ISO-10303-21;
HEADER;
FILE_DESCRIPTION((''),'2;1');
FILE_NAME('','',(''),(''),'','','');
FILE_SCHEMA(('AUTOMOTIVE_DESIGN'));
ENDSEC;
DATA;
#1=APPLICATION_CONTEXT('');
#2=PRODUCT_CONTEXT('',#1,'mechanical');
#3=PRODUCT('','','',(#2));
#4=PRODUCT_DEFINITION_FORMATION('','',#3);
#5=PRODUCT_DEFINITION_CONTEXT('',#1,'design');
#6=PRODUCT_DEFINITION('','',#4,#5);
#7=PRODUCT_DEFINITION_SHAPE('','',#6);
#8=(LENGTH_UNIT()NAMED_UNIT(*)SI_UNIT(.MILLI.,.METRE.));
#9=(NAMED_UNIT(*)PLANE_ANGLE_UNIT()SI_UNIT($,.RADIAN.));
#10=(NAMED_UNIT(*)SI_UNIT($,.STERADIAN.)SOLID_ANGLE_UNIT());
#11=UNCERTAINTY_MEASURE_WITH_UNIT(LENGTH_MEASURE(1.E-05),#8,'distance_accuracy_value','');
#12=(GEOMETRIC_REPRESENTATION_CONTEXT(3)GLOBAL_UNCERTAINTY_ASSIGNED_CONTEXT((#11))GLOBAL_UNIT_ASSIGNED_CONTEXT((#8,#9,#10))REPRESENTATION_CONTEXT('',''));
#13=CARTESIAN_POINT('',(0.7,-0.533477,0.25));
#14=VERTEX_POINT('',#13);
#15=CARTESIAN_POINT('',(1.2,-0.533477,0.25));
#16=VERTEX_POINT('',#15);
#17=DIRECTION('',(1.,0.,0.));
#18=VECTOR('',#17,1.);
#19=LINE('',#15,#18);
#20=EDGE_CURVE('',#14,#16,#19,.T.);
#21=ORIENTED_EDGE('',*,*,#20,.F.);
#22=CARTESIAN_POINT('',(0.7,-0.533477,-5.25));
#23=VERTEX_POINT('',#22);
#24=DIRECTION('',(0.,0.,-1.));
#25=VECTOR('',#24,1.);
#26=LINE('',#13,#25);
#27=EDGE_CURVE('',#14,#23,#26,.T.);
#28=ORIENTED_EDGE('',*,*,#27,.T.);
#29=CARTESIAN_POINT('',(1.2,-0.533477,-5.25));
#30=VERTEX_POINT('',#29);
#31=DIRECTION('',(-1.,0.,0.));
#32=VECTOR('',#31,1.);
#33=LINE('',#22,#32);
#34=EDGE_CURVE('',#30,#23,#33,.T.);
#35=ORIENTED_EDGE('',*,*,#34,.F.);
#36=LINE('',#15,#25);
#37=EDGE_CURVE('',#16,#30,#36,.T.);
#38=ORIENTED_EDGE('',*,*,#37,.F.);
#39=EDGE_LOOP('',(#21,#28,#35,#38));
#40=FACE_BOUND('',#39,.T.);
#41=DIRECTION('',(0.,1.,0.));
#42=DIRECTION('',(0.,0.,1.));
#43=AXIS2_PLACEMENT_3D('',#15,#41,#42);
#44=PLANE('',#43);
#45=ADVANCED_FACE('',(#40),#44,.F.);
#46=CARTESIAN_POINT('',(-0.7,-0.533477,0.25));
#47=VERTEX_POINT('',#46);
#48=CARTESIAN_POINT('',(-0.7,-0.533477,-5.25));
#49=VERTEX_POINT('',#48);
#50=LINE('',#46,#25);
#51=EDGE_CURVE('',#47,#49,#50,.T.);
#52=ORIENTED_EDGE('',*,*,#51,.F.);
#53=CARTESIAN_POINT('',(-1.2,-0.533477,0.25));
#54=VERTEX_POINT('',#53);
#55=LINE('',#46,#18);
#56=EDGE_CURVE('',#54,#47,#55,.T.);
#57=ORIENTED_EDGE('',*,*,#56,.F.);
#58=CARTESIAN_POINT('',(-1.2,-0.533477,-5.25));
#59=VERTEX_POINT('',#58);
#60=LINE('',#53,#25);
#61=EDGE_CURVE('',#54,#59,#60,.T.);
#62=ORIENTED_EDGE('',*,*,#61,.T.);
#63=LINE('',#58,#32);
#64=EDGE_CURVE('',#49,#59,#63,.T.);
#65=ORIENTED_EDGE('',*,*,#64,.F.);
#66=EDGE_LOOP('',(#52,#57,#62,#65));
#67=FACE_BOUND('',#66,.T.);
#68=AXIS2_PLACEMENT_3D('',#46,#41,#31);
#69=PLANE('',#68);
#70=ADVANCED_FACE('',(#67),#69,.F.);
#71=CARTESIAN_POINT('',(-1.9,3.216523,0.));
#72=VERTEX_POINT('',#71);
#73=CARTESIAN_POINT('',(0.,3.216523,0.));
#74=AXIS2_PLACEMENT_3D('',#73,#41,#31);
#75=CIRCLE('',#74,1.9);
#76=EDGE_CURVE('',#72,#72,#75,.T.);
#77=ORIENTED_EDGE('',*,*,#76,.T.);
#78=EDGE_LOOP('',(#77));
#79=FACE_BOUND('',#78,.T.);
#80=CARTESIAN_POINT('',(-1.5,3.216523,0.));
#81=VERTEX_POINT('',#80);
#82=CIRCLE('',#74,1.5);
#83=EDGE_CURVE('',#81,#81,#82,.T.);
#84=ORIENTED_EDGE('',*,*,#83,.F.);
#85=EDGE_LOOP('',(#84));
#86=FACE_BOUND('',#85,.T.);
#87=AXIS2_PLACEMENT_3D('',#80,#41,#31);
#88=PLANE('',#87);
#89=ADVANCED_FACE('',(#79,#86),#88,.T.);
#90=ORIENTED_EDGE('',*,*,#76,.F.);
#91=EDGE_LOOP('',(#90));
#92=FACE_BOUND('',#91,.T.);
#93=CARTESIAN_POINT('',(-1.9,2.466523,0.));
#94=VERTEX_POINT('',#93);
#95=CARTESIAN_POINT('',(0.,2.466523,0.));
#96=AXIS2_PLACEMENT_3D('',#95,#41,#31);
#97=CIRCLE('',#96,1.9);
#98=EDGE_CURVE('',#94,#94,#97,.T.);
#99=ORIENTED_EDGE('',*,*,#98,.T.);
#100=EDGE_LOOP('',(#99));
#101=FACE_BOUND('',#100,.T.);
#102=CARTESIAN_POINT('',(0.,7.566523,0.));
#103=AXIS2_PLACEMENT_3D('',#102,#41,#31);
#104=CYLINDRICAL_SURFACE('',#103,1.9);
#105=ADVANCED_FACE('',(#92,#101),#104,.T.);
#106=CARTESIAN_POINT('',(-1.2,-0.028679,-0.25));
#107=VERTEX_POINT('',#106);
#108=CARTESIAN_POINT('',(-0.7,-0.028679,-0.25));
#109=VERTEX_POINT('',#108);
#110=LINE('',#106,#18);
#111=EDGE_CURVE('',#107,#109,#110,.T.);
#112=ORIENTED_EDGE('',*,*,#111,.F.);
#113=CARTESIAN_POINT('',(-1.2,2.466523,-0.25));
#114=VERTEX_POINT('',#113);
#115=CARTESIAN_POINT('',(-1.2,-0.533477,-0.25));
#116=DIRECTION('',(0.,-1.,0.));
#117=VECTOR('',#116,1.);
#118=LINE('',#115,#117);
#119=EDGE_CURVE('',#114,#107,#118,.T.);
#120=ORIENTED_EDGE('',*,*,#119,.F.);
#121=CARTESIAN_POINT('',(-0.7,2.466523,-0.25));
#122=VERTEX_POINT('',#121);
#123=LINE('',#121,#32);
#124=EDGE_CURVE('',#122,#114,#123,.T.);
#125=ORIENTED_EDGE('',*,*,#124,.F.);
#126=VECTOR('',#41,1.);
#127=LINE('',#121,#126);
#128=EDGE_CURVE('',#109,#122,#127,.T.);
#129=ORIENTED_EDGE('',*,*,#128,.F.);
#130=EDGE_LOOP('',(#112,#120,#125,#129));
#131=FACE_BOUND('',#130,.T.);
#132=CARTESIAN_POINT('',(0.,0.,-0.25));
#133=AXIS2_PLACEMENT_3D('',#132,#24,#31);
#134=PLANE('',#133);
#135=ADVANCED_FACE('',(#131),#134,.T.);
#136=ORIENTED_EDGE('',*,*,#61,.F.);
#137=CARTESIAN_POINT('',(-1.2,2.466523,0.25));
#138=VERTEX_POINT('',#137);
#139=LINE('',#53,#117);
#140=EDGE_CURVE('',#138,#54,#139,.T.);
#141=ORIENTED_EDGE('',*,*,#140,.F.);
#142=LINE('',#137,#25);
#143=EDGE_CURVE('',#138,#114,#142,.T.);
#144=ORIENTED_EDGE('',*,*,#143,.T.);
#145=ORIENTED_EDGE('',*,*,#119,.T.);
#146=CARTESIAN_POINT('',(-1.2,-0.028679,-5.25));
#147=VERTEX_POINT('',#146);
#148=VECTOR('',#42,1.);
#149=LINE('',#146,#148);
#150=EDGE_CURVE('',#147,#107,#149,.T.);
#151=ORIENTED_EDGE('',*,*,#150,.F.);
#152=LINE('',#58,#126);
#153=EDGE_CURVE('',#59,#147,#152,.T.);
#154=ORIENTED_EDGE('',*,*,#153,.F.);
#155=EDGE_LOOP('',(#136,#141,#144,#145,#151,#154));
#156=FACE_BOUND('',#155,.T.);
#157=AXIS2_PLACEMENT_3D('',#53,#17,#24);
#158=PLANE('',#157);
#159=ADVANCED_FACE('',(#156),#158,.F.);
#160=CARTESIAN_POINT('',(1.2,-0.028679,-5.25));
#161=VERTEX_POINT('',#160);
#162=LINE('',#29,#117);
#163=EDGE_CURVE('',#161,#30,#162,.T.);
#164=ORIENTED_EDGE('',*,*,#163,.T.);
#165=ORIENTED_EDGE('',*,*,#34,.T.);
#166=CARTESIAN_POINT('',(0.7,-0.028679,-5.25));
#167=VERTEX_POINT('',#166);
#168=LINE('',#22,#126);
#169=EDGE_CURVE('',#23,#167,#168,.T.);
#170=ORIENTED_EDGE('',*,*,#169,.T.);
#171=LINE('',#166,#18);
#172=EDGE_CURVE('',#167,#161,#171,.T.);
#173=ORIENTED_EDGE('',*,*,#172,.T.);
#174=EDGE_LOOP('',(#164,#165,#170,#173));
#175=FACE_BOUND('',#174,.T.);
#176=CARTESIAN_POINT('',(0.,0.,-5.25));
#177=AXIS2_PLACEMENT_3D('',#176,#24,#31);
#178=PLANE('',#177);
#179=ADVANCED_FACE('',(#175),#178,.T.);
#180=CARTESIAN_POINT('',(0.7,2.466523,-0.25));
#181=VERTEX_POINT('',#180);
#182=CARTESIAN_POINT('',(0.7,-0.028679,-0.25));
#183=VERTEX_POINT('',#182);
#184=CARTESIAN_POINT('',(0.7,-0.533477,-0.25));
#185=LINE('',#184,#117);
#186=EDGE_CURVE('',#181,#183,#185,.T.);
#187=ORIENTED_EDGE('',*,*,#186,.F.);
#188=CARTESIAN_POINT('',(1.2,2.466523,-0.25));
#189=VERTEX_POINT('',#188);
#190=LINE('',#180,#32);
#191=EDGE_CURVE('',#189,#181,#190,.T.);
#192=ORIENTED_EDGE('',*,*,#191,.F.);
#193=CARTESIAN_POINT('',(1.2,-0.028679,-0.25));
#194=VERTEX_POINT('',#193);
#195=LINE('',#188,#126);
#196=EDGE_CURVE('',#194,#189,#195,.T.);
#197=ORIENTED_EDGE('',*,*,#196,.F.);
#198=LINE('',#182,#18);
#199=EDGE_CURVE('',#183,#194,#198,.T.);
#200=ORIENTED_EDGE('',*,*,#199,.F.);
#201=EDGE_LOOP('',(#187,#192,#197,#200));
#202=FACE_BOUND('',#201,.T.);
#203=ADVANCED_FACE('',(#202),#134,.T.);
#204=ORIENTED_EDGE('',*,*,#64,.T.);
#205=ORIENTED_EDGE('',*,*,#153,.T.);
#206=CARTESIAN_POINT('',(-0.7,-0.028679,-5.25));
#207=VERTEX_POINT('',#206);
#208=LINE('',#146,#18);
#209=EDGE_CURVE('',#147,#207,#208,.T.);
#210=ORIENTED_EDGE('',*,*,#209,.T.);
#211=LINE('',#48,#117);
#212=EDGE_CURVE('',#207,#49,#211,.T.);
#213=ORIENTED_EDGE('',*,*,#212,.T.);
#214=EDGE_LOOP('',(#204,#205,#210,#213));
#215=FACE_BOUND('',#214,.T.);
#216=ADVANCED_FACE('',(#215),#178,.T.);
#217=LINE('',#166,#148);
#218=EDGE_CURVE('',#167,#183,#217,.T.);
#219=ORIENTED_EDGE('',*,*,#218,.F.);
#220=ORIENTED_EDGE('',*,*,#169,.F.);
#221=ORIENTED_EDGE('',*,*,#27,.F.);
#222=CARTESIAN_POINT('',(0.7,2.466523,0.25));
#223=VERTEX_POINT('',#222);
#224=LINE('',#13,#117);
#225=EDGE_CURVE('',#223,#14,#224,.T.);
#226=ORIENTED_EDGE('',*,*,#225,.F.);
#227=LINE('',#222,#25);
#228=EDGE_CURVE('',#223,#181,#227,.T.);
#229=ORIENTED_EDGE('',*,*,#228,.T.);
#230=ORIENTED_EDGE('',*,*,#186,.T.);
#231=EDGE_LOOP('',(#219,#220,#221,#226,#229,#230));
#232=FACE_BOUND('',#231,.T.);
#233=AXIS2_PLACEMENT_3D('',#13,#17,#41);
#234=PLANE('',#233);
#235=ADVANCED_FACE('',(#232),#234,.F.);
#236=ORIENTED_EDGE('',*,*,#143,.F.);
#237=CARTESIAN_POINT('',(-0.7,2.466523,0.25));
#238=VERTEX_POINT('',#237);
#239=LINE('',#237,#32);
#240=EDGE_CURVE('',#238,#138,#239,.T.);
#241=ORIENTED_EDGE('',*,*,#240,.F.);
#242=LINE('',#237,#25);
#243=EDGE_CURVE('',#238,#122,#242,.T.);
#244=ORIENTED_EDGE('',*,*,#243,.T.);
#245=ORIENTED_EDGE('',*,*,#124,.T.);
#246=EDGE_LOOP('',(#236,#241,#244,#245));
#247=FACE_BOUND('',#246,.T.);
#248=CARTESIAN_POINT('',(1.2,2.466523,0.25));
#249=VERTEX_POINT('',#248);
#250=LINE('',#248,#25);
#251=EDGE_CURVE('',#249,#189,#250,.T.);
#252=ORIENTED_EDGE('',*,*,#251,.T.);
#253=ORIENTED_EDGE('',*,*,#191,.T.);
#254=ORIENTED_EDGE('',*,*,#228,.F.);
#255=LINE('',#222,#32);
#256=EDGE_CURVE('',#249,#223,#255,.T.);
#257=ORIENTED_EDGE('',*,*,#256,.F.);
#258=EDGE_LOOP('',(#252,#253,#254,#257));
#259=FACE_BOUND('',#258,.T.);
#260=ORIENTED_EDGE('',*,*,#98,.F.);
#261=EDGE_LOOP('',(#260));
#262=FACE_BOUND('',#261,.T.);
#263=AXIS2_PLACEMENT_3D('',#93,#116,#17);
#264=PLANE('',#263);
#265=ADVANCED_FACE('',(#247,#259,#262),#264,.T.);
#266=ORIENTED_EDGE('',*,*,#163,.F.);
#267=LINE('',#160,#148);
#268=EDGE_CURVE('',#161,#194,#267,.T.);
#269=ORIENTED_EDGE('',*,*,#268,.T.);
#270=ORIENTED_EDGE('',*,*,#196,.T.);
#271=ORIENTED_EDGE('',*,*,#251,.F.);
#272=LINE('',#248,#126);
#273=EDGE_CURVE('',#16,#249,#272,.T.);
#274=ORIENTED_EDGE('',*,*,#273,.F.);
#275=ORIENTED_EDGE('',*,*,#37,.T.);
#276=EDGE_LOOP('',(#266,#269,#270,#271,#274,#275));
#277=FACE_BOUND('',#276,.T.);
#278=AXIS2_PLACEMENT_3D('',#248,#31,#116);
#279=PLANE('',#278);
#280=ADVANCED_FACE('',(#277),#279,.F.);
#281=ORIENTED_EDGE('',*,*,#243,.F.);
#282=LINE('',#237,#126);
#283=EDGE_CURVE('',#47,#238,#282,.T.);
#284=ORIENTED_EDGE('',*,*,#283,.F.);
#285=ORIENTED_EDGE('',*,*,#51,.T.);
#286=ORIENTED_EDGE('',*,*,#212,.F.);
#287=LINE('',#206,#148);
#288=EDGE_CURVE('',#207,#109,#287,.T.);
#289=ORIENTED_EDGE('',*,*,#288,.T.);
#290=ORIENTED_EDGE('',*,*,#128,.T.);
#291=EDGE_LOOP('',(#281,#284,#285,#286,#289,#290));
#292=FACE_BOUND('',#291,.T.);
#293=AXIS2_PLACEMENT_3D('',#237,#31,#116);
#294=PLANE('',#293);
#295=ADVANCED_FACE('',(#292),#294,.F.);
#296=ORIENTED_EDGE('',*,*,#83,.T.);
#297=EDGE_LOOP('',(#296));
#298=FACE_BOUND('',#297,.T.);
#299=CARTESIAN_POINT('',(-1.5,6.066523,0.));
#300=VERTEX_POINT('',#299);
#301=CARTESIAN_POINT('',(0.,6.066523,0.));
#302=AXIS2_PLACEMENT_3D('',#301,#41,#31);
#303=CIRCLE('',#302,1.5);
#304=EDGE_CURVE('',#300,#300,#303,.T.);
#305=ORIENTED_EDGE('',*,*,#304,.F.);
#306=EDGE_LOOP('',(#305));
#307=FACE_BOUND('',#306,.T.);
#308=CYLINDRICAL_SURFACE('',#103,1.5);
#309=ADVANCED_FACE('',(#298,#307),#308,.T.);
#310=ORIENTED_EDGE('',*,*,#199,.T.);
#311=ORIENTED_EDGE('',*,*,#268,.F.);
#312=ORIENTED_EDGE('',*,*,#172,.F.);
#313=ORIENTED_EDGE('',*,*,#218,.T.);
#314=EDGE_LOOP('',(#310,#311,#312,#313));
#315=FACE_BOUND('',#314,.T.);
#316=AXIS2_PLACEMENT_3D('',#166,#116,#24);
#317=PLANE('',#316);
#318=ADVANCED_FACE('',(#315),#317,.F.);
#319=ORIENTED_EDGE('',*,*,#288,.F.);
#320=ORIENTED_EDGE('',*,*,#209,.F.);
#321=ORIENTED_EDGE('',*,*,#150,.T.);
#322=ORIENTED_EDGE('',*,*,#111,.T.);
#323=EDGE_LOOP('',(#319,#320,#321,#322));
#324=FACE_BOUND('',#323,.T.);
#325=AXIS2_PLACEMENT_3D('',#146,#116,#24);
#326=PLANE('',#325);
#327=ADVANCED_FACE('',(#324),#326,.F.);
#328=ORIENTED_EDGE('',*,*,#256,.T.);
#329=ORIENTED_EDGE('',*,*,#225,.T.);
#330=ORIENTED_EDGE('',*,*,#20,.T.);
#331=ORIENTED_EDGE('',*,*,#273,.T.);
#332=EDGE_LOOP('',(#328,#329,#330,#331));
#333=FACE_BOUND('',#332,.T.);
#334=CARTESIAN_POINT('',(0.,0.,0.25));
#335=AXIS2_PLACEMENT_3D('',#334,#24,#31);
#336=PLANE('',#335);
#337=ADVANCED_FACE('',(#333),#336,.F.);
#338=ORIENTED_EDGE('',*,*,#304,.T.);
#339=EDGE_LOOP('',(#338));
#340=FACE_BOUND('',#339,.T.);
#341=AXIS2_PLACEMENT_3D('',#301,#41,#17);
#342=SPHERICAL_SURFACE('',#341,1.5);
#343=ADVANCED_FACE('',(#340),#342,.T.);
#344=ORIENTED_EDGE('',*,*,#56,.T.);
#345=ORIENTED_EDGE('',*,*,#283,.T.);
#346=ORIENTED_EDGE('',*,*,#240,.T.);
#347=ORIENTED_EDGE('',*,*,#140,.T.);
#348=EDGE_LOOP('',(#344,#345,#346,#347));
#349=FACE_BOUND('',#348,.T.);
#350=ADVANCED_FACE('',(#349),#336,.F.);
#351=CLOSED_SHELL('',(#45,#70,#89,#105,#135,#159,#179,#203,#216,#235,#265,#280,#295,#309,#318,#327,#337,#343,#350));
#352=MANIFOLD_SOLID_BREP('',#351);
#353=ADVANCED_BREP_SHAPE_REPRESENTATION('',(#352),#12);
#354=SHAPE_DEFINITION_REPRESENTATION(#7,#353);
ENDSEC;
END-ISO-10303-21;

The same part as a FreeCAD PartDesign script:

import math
import FreeCAD as App
import Part
import Sketcher
from FreeCAD import Vector

doc = App.newDocument("Part")
body = doc.addObject("PartDesign::Body", "Body")

# Sketch on XY plane
sketch1 = body.newObject("Sketcher::SketchObject", "Sketch")
sketch1.AttachmentSupport = (doc.getObject("XY_Plane"), [""])
sketch1.MapMode = "FlatFace"
sketch1.addGeometry([
    Part.LineSegment(Vector(-1.5, 6.07, 0), Vector(-1.5, 3.22, 0)),  # 0
    Part.LineSegment(Vector(-1.5, 3.22, 0), Vector(-1.9, 3.22, 0)),  # 1
    Part.LineSegment(Vector(-1.9, 3.22, 0), Vector(-1.9, 2.47, 0)),  # 2
    Part.LineSegment(Vector(-1.9, 2.47, 0), Vector(0, 2.47, 0)),  # 3
    Part.LineSegment(Vector(0, 2.47, 0), Vector(0, 7.57, 0)),  # 4
    Part.ArcOfCircle(Part.Circle(Vector(0, 6.07, 0), Vector(0, 0, 1), 1.5), math.radians(90), math.radians(180)),  # 5
], False)
sketch1.addConstraint([
    Sketcher.Constraint("Coincident", 0, 2, 1, 1),
    Sketcher.Constraint("Coincident", 1, 2, 2, 1),
    Sketcher.Constraint("Coincident", 2, 2, 3, 1),
    Sketcher.Constraint("Coincident", 3, 2, 4, 1),
    Sketcher.Constraint("Coincident", 4, 2, 5, 1),
    Sketcher.Constraint("Tangent", 5, 2, 0, 1),
    Sketcher.Constraint("Vertical", 0),
    Sketcher.Constraint("Horizontal", 1),
    Sketcher.Constraint("Vertical", 2),
    Sketcher.Constraint("Horizontal", 3),
    Sketcher.Constraint("Vertical", 4),
    Sketcher.Constraint("PointOnObject", 5, 3, -2),
    Sketcher.Constraint("PointOnObject", 3, 2, -2),
    Sketcher.Constraint("Radius", 5, 1.5),
    Sketcher.Constraint("DistanceX", 1, 2, 1, 1, 0.4),
    Sketcher.Constraint("DistanceY", 4, 1, 4, 2, 5.1),
    Sketcher.Constraint("DistanceY", 0, 2, 0, 1, 2.85),
    Sketcher.Constraint("DistanceY", -1, 1, 5, 3, 6.066523),
])
revolution = body.newObject("PartDesign::Revolution", "Revolution")
revolution.Profile = sketch1
revolution.ReferenceAxis = (sketch1, ["V_Axis"])
revolution.Angle = 360

# Sketch on XY plane
sketch2 = body.newObject("Sketcher::SketchObject", "Sketch001")
sketch2.AttachmentSupport = (doc.getObject("XY_Plane"), [""])
sketch2.MapMode = "FlatFace"
sketch2.addGeometry([
    Part.LineSegment(Vector(0.7, 2.5, 0), Vector(0.7, -0.5, 0)),  # 0
    Part.LineSegment(Vector(0.7, -0.5, 0), Vector(1.2, -0.5, 0)),  # 1
    Part.LineSegment(Vector(1.2, -0.5, 0), Vector(1.2, 2.5, 0)),  # 2
    Part.LineSegment(Vector(1.2, 2.5, 0), Vector(0.7, 2.5, 0)),  # 3
    Part.LineSegment(Vector(-1.2, 2.5, 0), Vector(-1.2, -0.5, 0)),  # 4
    Part.LineSegment(Vector(-1.2, -0.5, 0), Vector(-0.7, -0.5, 0)),  # 5
    Part.LineSegment(Vector(-0.7, -0.5, 0), Vector(-0.7, 2.5, 0)),  # 6
    Part.LineSegment(Vector(-0.7, 2.5, 0), Vector(-1.2, 2.5, 0)),  # 7
], False)
sketch2.addConstraint([
    Sketcher.Constraint("Coincident", 0, 2, 1, 1),
    Sketcher.Constraint("Coincident", 1, 2, 2, 1),
    Sketcher.Constraint("Coincident", 2, 2, 3, 1),
    Sketcher.Constraint("Coincident", 3, 2, 0, 1),
    Sketcher.Constraint("Coincident", 4, 2, 5, 1),
    Sketcher.Constraint("Coincident", 5, 2, 6, 1),
    Sketcher.Constraint("Coincident", 6, 2, 7, 1),
    Sketcher.Constraint("Coincident", 7, 2, 4, 1),
    Sketcher.Constraint("Vertical", 0),
    Sketcher.Constraint("Horizontal", 1),
    Sketcher.Constraint("Vertical", 2),
    Sketcher.Constraint("Horizontal", 3),
    Sketcher.Constraint("Vertical", 4),
    Sketcher.Constraint("Horizontal", 5),
    Sketcher.Constraint("Vertical", 6),
    Sketcher.Constraint("Horizontal", 7),
    Sketcher.Constraint("Symmetric", 1, 2, 4, 2, -2),
    Sketcher.Constraint("Symmetric", 3, 2, 6, 2, -2),
    Sketcher.Constraint("DistanceY", 0, 2, 0, 1, 3.0),
    Sketcher.Constraint("DistanceX", 1, 1, 1, 2, 0.5),
    Sketcher.Constraint("DistanceX", -1, 1, 0, 2, 0.7),
    Sketcher.Constraint("DistanceY", 0, 2, -1, 1, 0.533477),
])
pad1 = body.newObject("PartDesign::Pad", "Pad")
pad1.Profile = sketch2
pad1.Length = 0.5
pad1.Midplane = True

# Sketch on XY plane
sketch3 = body.newObject("Sketcher::SketchObject", "Sketch002")
sketch3.AttachmentSupport = (doc.getObject("XY_Plane"), [""])
sketch3.MapMode = "FlatFace"
sketch3.AttachmentOffset = App.Placement(Vector(0, 0, -0.25), App.Rotation())
sketch3.addGeometry([
    Part.LineSegment(Vector(-0.7, 0, 0), Vector(-0.7, -0.5, 0)),  # 0
    Part.LineSegment(Vector(-0.7, -0.5, 0), Vector(-1.2, -0.5, 0)),  # 1
    Part.LineSegment(Vector(-1.2, -0.5, 0), Vector(-1.2, 0, 0)),  # 2
    Part.LineSegment(Vector(-1.2, 0, 0), Vector(-0.7, 0, 0)),  # 3
    Part.LineSegment(Vector(1.2, 0, 0), Vector(1.2, -0.5, 0)),  # 4
    Part.LineSegment(Vector(1.2, -0.5, 0), Vector(0.7, -0.5, 0)),  # 5
    Part.LineSegment(Vector(0.7, -0.5, 0), Vector(0.7, 0, 0)),  # 6
    Part.LineSegment(Vector(0.7, 0, 0), Vector(1.2, 0, 0)),  # 7
], False)
sketch3.addConstraint([
    Sketcher.Constraint("Coincident", 0, 2, 1, 1),
    Sketcher.Constraint("Coincident", 1, 2, 2, 1),
    Sketcher.Constraint("Coincident", 2, 2, 3, 1),
    Sketcher.Constraint("Coincident", 3, 2, 0, 1),
    Sketcher.Constraint("Coincident", 4, 2, 5, 1),
    Sketcher.Constraint("Coincident", 5, 2, 6, 1),
    Sketcher.Constraint("Coincident", 6, 2, 7, 1),
    Sketcher.Constraint("Coincident", 7, 2, 4, 1),
    Sketcher.Constraint("Vertical", 0),
    Sketcher.Constraint("Horizontal", 1),
    Sketcher.Constraint("Vertical", 2),
    Sketcher.Constraint("Horizontal", 3),
    Sketcher.Constraint("Vertical", 4),
    Sketcher.Constraint("Horizontal", 5),
    Sketcher.Constraint("Vertical", 6),
    Sketcher.Constraint("Horizontal", 7),
    Sketcher.Constraint("Symmetric", 1, 2, 4, 2, -2),
    Sketcher.Constraint("Symmetric", 3, 2, 6, 2, -2),
    Sketcher.Constraint("DistanceX", 1, 2, 1, 1, 0.5),
    Sketcher.Constraint("DistanceX", 0, 2, -1, 1, 0.7),
    Sketcher.Constraint("DistanceY", 0, 2, 0, 1, 0.504798),
    Sketcher.Constraint("DistanceY", 2, 2, -1, 1, 0.028679),
])
pad2 = body.newObject("PartDesign::Pad", "Pad001")
pad2.Profile = sketch3
pad2.Length = 5
pad2.Reversed = True

doc.recompute()
